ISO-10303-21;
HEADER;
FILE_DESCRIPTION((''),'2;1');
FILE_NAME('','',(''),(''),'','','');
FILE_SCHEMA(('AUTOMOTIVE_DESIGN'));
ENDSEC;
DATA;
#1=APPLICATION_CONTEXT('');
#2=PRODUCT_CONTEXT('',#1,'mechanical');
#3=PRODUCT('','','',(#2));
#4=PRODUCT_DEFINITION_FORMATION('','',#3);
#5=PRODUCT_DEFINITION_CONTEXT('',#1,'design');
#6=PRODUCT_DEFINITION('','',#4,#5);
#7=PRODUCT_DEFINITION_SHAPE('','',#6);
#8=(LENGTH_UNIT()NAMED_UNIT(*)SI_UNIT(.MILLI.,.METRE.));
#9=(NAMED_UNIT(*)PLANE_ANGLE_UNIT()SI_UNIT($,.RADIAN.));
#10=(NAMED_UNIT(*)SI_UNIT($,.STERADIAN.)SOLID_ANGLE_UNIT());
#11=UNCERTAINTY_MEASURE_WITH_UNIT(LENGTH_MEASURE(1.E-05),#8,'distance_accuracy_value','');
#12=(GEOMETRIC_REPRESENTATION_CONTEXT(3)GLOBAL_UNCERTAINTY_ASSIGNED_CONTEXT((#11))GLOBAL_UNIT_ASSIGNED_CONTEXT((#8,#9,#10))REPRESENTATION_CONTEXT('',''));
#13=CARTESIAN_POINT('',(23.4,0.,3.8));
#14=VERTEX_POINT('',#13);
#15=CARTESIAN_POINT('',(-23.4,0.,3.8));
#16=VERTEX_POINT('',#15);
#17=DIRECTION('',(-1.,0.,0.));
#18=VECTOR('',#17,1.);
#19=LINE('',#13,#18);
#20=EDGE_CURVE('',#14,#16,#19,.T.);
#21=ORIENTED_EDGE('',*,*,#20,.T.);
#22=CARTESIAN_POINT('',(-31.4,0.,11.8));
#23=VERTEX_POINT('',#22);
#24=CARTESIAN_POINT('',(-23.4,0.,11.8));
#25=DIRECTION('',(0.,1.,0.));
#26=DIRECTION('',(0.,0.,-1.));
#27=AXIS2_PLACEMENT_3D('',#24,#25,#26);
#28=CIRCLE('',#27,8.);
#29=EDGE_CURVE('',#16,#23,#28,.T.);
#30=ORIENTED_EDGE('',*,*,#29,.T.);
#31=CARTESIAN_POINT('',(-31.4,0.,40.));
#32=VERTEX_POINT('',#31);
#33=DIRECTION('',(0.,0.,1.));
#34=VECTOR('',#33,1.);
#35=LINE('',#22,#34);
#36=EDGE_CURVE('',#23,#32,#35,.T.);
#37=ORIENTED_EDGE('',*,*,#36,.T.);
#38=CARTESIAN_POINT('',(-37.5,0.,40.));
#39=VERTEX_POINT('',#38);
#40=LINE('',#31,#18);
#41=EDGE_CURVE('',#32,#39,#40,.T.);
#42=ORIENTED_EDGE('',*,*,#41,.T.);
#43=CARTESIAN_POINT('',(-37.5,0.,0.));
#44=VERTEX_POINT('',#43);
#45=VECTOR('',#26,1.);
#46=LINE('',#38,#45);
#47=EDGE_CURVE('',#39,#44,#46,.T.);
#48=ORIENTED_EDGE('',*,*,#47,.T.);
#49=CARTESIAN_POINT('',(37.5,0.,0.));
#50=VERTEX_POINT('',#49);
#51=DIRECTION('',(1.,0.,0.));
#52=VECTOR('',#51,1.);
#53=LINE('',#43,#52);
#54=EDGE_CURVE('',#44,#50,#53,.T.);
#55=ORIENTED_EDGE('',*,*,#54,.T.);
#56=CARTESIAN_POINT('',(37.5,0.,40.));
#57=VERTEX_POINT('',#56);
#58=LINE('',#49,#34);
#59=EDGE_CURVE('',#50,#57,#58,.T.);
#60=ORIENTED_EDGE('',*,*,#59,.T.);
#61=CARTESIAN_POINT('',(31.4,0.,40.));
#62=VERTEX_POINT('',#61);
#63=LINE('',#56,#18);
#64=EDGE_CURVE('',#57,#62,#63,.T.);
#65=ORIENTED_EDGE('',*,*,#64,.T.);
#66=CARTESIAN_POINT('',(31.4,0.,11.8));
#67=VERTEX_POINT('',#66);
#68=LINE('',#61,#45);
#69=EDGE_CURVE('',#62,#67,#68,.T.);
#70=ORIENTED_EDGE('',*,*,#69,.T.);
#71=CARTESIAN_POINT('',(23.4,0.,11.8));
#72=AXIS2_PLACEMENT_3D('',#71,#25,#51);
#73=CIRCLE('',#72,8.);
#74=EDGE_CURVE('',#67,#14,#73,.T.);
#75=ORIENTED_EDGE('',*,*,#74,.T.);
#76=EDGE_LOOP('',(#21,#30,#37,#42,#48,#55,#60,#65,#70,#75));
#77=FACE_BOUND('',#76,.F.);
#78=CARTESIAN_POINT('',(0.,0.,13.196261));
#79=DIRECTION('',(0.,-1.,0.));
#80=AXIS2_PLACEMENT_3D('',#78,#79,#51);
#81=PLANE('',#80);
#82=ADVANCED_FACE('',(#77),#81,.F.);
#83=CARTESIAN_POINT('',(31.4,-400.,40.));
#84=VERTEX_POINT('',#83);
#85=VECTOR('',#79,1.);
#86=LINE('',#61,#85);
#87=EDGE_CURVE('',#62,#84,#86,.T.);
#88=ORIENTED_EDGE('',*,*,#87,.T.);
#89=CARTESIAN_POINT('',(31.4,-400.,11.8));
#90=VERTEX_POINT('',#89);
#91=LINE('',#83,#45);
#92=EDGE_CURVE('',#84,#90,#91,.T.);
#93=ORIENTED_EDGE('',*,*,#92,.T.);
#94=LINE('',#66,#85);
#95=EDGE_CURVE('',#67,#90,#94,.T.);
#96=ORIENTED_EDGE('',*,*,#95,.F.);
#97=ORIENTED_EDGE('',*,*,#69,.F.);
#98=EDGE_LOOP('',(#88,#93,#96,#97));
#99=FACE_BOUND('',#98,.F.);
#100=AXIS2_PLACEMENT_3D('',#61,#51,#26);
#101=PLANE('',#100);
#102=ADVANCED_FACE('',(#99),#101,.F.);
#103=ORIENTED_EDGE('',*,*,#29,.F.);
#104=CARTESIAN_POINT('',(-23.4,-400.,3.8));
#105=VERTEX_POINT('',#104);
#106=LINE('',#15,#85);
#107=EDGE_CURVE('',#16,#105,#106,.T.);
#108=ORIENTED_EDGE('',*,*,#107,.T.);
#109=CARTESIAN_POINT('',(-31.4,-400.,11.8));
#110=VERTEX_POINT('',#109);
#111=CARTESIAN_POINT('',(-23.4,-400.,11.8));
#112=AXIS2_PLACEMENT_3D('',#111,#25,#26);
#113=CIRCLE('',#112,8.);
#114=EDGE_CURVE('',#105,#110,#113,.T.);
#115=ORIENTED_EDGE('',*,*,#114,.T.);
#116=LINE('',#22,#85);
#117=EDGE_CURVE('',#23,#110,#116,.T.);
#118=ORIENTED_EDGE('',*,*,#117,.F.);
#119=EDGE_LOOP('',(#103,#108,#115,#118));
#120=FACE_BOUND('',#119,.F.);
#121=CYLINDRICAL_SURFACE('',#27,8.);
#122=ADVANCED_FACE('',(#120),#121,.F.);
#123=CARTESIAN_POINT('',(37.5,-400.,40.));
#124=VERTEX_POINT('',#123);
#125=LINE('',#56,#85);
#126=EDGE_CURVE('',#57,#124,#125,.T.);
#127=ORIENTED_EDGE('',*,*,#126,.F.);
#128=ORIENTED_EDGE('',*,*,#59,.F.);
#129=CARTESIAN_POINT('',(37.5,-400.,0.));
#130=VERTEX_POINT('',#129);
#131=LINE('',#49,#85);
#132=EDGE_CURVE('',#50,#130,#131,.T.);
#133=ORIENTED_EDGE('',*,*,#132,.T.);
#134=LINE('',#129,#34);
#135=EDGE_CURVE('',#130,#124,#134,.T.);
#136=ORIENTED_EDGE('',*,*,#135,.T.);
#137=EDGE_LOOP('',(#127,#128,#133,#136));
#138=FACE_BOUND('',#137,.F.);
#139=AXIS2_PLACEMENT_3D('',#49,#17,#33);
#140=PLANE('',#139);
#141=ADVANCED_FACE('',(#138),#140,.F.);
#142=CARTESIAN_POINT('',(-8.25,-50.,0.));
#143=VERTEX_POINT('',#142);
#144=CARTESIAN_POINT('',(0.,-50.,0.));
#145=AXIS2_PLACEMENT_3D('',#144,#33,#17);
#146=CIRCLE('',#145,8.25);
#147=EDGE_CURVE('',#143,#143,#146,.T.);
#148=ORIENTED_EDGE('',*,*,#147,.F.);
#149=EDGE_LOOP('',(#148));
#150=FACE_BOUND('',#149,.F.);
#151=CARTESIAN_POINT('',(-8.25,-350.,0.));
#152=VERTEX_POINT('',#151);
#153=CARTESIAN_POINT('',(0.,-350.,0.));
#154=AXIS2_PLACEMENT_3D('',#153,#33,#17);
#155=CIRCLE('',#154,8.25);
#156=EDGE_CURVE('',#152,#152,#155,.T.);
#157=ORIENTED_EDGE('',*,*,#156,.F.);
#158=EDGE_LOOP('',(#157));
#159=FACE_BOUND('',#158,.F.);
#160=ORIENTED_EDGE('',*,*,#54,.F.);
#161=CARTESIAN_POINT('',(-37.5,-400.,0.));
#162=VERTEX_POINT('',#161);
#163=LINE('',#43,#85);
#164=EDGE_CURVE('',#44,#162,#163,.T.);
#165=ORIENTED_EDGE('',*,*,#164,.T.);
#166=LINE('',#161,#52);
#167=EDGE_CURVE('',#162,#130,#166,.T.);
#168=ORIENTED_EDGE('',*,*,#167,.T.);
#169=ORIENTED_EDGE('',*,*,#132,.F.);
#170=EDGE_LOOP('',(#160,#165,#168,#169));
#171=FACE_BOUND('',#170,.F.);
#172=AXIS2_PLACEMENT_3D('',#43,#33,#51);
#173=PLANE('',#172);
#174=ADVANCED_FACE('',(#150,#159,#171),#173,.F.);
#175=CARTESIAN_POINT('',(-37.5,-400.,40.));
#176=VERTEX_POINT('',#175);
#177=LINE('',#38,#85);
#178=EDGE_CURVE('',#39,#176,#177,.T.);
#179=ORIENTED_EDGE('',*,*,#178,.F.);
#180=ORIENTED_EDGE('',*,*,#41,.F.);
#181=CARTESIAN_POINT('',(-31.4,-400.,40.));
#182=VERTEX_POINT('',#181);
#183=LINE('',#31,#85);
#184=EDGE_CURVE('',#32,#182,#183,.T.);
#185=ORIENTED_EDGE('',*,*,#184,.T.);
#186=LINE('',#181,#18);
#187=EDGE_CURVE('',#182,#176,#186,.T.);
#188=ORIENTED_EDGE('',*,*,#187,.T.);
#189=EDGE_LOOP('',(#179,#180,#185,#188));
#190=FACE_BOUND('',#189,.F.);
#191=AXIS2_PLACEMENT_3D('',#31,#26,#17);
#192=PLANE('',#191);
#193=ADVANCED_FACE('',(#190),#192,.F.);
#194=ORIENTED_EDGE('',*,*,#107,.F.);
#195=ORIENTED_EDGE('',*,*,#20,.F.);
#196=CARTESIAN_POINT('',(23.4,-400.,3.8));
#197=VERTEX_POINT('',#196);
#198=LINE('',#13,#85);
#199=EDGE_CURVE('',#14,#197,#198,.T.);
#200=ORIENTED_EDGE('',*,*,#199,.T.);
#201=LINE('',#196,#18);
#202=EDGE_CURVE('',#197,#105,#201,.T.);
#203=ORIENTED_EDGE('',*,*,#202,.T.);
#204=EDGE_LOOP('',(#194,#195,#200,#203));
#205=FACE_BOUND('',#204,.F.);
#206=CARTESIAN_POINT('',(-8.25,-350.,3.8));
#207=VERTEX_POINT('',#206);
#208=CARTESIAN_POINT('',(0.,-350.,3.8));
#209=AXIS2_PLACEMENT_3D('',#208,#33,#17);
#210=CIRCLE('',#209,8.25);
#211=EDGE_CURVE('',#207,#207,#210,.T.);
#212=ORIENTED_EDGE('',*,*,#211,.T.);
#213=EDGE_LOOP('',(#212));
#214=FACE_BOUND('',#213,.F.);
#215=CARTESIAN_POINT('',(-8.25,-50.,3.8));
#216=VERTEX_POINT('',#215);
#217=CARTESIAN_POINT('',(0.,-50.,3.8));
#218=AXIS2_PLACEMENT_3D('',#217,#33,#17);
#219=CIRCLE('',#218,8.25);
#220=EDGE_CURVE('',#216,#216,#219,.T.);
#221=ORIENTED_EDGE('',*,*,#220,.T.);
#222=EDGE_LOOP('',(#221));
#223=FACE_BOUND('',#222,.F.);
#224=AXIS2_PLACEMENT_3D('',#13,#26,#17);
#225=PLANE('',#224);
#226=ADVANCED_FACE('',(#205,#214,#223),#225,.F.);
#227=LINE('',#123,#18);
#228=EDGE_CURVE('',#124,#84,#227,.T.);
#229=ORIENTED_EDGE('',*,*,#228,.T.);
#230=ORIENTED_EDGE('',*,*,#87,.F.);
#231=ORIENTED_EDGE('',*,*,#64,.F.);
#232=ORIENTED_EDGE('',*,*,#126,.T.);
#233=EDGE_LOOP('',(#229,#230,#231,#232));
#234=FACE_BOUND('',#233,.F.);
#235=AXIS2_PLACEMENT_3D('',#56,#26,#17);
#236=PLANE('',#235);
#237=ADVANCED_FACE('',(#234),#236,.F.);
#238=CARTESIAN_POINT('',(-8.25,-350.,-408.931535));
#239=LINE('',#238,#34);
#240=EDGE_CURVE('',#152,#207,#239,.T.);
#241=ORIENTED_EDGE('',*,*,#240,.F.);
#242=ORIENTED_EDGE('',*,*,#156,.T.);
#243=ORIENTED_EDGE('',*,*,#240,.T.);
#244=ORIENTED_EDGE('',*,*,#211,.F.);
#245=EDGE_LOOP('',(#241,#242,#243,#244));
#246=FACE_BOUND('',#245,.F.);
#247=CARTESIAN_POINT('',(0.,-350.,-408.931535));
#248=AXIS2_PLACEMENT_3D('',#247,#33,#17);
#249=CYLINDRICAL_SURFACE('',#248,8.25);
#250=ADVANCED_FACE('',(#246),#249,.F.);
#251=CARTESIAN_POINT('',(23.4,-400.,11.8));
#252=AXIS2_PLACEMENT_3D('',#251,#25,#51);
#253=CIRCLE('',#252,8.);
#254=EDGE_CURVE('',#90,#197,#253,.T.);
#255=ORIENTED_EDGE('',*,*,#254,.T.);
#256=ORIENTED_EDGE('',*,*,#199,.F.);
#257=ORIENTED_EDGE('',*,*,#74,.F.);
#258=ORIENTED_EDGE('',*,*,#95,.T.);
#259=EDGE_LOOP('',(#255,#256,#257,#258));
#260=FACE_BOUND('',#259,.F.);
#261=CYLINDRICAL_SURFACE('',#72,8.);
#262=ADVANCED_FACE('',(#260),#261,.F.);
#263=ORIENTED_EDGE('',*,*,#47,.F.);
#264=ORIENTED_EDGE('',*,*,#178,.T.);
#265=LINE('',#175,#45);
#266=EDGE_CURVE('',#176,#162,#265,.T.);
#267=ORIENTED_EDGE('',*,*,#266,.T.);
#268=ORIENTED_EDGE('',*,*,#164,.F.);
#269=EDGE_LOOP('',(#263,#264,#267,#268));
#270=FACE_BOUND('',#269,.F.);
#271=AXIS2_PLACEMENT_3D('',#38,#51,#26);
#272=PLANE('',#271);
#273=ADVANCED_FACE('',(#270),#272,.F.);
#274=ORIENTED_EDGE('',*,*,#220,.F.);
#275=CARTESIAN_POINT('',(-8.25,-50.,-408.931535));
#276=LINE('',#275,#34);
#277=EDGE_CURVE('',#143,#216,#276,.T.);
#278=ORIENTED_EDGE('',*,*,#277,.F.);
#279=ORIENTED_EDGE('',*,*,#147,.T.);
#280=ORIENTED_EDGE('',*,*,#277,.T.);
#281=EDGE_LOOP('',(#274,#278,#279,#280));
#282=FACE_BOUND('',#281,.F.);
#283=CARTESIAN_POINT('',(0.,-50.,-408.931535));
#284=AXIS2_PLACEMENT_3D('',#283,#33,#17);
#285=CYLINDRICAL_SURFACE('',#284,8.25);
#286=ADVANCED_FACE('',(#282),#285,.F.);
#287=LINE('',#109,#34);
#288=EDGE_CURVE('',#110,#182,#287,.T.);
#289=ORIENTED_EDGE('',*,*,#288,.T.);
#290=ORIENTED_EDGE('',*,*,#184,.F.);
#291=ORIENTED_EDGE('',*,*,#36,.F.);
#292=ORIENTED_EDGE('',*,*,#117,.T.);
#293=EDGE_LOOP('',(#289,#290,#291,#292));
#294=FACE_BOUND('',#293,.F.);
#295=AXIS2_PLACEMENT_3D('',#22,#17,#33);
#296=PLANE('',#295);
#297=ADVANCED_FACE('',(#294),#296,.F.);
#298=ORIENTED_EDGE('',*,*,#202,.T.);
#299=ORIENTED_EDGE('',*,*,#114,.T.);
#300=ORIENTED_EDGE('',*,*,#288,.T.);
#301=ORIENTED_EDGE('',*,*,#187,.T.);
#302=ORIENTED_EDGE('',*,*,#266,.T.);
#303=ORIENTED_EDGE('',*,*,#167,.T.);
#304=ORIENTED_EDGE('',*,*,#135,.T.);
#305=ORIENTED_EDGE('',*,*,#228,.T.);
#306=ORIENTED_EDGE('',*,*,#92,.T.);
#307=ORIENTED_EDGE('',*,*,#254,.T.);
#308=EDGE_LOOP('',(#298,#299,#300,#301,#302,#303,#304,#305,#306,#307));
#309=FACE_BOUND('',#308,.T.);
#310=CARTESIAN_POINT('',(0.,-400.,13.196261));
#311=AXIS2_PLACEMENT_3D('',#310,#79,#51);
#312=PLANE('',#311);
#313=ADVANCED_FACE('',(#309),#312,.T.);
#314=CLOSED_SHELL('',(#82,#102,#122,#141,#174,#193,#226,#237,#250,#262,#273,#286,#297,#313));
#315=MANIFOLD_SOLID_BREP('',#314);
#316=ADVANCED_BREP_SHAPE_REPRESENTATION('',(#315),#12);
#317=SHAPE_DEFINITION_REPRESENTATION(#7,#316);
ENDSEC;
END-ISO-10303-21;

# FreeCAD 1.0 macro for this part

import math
import FreeCAD as App
import Part
import Sketcher

V = App.Vector

doc = App.newDocument("Part")
params = doc.addObject("Spreadsheet::Sheet", "Params")
for row, (alias, value) in enumerate([
    ("sketch1_radius", "8 mm"),
    ("sketch1_width", "75 mm"),
    ("sketch1_height", "40 mm"),
    ("sketch1_width2", "6.1 mm"),
    ("sketch1_height2", "28.2 mm"),
    ("pad1_length", "400 mm"),
    ("sketch2_diameter", "16.5 mm"),
    ("hole_diameter", "16.5 mm"),
], start=1):
    params.set(f"A{row}", alias)
    params.set(f"B{row}", "=" + value)
    params.setAlias(f"B{row}", alias)

body = doc.addObject("PartDesign::Body", "Body")

# Sketch on XZ plane
sketch1 = doc.addObject("Sketcher::SketchObject", "Sketch")
body.addObject(sketch1)
sketch1.AttachmentSupport = (doc.XZ_Plane, [""])
sketch1.MapMode = "FlatFace"
sketch1.addGeometry([
    Part.LineSegment(V(-37.5, 0, 0), V(37.5, 0, 0)),  # 0
    Part.LineSegment(V(37.5, 0, 0), V(37.5, 40, 0)),  # 1
    Part.LineSegment(V(37.5, 40, 0), V(31.4, 40, 0)),  # 2
    Part.LineSegment(V(31.4, 40, 0), V(31.4, 11.8, 0)),  # 3
    Part.ArcOfCircle(Part.Circle(V(23.4, 11.8, 0), V(0, 0, 1), 8), math.radians(-90), math.radians(0)),  # 4
    Part.LineSegment(V(23.4, 3.8, 0), V(-23.4, 3.8, 0)),  # 5
    Part.ArcOfCircle(Part.Circle(V(-23.4, 11.8, 0), V(0, 0, 1), 8), math.radians(180), math.radians(270)),  # 6
    Part.LineSegment(V(-31.4, 11.8, 0), V(-31.4, 40, 0)),  # 7
    Part.LineSegment(V(-31.4, 40, 0), V(-37.5, 40, 0)),  # 8
    Part.LineSegment(V(-37.5, 40, 0), V(-37.5, 0, 0)),  # 9
], False)
sketch1.addConstraint([
    Sketcher.Constraint("Coincident", 0, 2, 1, 1),
    Sketcher.Constraint("Coincident", 1, 2, 2, 1),
    Sketcher.Constraint("Coincident", 2, 2, 3, 1),
    Sketcher.Constraint("Tangent", 3, 2, 4, 2),
    Sketcher.Constraint("Tangent", 4, 1, 5, 1),
    Sketcher.Constraint("Tangent", 5, 2, 6, 2),
    Sketcher.Constraint("Tangent", 6, 1, 7, 1),
    Sketcher.Constraint("Coincident", 7, 2, 8, 1),
    Sketcher.Constraint("Coincident", 8, 2, 9, 1),
    Sketcher.Constraint("Coincident", 9, 2, 0, 1),
    Sketcher.Constraint("Horizontal", 0),
    Sketcher.Constraint("Vertical", 1),
    Sketcher.Constraint("Horizontal", 2),
    Sketcher.Constraint("Vertical", 3),
    Sketcher.Constraint("Horizontal", 5),
    Sketcher.Constraint("Vertical", 7),
    Sketcher.Constraint("Horizontal", 8),
    Sketcher.Constraint("Vertical", 9),
    Sketcher.Constraint("Equal", 4, 6),
    Sketcher.Constraint("Symmetric", 0, 2, 9, 2, -1, 1),
    Sketcher.Constraint("Symmetric", 2, 2, 7, 2, -2),
    Sketcher.Constraint("Radius", 4, 8.0),
    Sketcher.Constraint("DistanceX", 0, 1, 0, 2, 75.0),
    Sketcher.Constraint("DistanceY", 1, 1, 1, 2, 40.0),
    Sketcher.Constraint("DistanceX", 2, 2, 2, 1, 6.1),
    Sketcher.Constraint("DistanceY", 3, 2, 3, 1, 28.2),
])
sketch1.setExpression("Constraints[21]", "Params.sketch1_radius")
sketch1.setExpression("Constraints[22]", "Params.sketch1_width")
sketch1.setExpression("Constraints[23]", "Params.sketch1_height")
sketch1.setExpression("Constraints[24]", "Params.sketch1_width2")
sketch1.setExpression("Constraints[25]", "Params.sketch1_height2")
pad1 = doc.addObject("PartDesign::Pad", "Pad")
body.addObject(pad1)
pad1.Profile = sketch1
pad1.setExpression("Length", "Params.pad1_length")

# Sketch on XY plane
sketch2 = doc.addObject("Sketcher::SketchObject", "Sketch001")
body.addObject(sketch2)
sketch2.AttachmentSupport = (doc.XY_Plane, [""])
sketch2.MapMode = "FlatFace"
sketch2.addGeometry([
    Part.Circle(V(0, -50, 0), V(0, 0, 1), 8.25),
    Part.Circle(V(0, -350, 0), V(0, 0, 1), 8.25),
], False)
sketch2.addConstraint([
    Sketcher.Constraint("Equal", 0, 1),
    Sketcher.Constraint("PointOnObject", 0, 3, -2),
    Sketcher.Constraint("PointOnObject", 1, 3, -2),
    Sketcher.Constraint("Diameter", 0, 16.5),
    Sketcher.Constraint("DistanceY", 0, 3, -1, 1, 50.0),
    Sketcher.Constraint("DistanceY", 1, 3, -1, 1, 350.0),
])
sketch2.setExpression("Constraints[3]", "Params.sketch2_diameter")
doc.recompute()
hole = doc.addObject("PartDesign::Hole", "Hole")
body.addObject(hole)
hole.Profile = sketch2
hole.ThreadType = "None"
hole.setExpression("Diameter", "Params.hole_diameter")
hole.DepthType = "ThroughAll"
hole.Reversed = True

doc.recompute()
